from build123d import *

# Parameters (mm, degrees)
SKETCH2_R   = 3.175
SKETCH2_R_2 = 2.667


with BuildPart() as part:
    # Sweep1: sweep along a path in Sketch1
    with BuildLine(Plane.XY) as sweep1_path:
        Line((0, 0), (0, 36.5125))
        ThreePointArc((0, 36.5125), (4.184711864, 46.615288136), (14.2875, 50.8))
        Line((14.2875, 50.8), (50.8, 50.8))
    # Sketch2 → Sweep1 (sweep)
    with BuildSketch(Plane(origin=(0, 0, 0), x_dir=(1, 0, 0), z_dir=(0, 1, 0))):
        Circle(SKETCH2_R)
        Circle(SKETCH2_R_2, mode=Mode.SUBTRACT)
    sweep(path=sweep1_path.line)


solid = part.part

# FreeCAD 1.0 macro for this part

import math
import FreeCAD as App
import Part
import Sketcher

V = App.Vector
Q = App.Units.Quantity

doc = App.newDocument("Part")
body = doc.addObject("PartDesign::Body", "Body")

# Sketch on XZ plane
sketch1 = body.newObject("Sketcher::SketchObject", "Sketch")
sketch1.AttachmentSupport = (doc.getObject("XZ_Plane"), [""])
sketch1.MapMode = "FlatFace"
sketch1.addGeometry([
    Part.Circle(V(0, 0, 0), V(0, 0, 1), 3.2),
    Part.Circle(V(0, 0, 0), V(0, 0, 1), 2.7),
], False)
sketch1.addConstraint([
    Sketcher.Constraint("Coincident", 0, 3, -1, 1),
    Sketcher.Constraint("Coincident", 1, 3, -1, 1),
    Sketcher.Constraint("Diameter", 0, Q("0.25 in")),
    Sketcher.Constraint("Diameter", 1, Q("0.21 in")),
])

# Sketch on XY plane
sketch2 = body.newObject("Sketcher::SketchObject", "Sketch001")
sketch2.AttachmentSupport = (doc.getObject("XY_Plane"), [""])
sketch2.MapMode = "FlatFace"
sketch2.addGeometry([
    Part.LineSegment(V(0, 0, 0), V(0, 37, 0)),
    Part.ArcOfCircle(Part.Circle(V(14, 37, 0), V(0, 0, 1), 14), math.radians(90), math.radians(180)),
    Part.LineSegment(V(14, 51, 0), V(51, 51, 0)),
], False)
sketch2.addConstraint([
    Sketcher.Constraint("Tangent", 0, 2, 1, 2),
    Sketcher.Constraint("Tangent", 1, 1, 2, 1),
    Sketcher.Constraint("Vertical", 0),
    Sketcher.Constraint("Horizontal", 2),
    Sketcher.Constraint("Coincident", 0, 1, -1, 1),
    Sketcher.Constraint("Equal", 2, 0),
    Sketcher.Constraint("DistanceY", -1, 1, 1, 1, Q("2 in")),
    Sketcher.Constraint("Radius", 1, Q("0.5625 in")),
])
doc.recompute()

additivepipe = body.newObject("PartDesign::AdditivePipe", "AdditivePipe")
additivepipe.Profile = sketch1
additivepipe.Spine = (sketch2, ["Edge1", "Edge2", "Edge3"])

doc.recompute()
